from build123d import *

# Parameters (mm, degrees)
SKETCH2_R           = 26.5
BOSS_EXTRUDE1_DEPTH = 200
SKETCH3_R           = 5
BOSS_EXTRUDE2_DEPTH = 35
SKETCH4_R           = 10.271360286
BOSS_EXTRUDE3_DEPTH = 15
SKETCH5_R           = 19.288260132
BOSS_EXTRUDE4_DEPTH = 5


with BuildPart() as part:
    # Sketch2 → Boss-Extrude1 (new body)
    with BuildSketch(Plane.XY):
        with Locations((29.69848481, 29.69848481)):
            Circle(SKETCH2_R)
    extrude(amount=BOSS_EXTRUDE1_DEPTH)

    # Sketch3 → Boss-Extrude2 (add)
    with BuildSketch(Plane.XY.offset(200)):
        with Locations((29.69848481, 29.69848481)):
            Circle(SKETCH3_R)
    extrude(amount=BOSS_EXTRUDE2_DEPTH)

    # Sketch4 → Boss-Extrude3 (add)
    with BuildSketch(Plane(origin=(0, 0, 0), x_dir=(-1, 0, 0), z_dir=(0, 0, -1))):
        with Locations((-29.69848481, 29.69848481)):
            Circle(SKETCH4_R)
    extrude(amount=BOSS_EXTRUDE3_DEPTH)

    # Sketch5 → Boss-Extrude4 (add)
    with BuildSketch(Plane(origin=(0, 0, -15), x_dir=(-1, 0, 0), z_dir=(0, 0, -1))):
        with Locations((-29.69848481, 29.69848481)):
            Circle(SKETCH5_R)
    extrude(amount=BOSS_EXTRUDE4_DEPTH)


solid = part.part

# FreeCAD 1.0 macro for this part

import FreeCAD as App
import Part
import Sketcher
from FreeCAD import Vector
Q = App.Units.Quantity

doc = App.newDocument("Part")
body = doc.addObject("PartDesign::Body", "Body")

# Sketch on XY plane
sketch1 = body.newObject("Sketcher::SketchObject", "Sketch")
sketch1.AttachmentSupport = (doc.getObject("XY_Plane"), [""])
sketch1.MapMode = "FlatFace"
sketch1.addGeometry(Part.Circle(Vector(29.698485, 29.698485, 0), Vector(0, 0, 1), 26.5), False)
sketch1.addConstraint([
    Sketcher.Constraint("Diameter", 0, Q("53 mm")),
    Sketcher.Constraint("DistanceX", -1, 1, 0, 3, Q("29.698485 mm")),
    Sketcher.Constraint("DistanceY", -1, 1, 0, 3, Q("29.698485 mm")),
])
pad1 = body.newObject("PartDesign::Pad", "Pad")
pad1.Profile = sketch1
pad1.Length = 200

# Sketch on XY plane
sketch2 = body.newObject("Sketcher::SketchObject", "Sketch001")
sketch2.AttachmentSupport = (doc.getObject("XY_Plane"), [""])
sketch2.MapMode = "FlatFace"
sketch2.AttachmentOffset = App.Placement(Vector(0, 0, 200), App.Rotation())
sketch2.addGeometry(Part.Circle(Vector(29.698485, 29.698485, 0), Vector(0, 0, 1), 5), False)
sketch2.addConstraint([
    Sketcher.Constraint("Diameter", 0, Q("10 mm")),
    Sketcher.Constraint("DistanceX", -1, 1, 0, 3, Q("29.698485 mm")),
    Sketcher.Constraint("DistanceY", -1, 1, 0, 3, Q("29.698485 mm")),
])
pad2 = body.newObject("PartDesign::Pad", "Pad001")
pad2.Profile = sketch2
pad2.Length = 35

# Sketch on XY plane
sketch3 = body.newObject("Sketcher::SketchObject", "Sketch002")
sketch3.AttachmentSupport = (doc.getObject("XY_Plane"), [""])
sketch3.MapMode = "FlatFace"
sketch3.addGeometry(Part.Circle(Vector(29.698485, 29.698485, 0), Vector(0, 0, 1), 10.27136), False)
sketch3.addConstraint([
    Sketcher.Constraint("Diameter", 0, Q("20.542721 mm")),
    Sketcher.Constraint("DistanceX", -1, 1, 0, 3, Q("29.698485 mm")),
    Sketcher.Constraint("DistanceY", -1, 1, 0, 3, Q("29.698485 mm")),
])
pad3 = body.newObject("PartDesign::Pad", "Pad002")
pad3.Profile = sketch3
pad3.Length = 15
pad3.Reversed = True

# Sketch on XY plane
sketch4 = body.newObject("Sketcher::SketchObject", "Sketch003")
sketch4.AttachmentSupport = (doc.getObject("XY_Plane"), [""])
sketch4.MapMode = "FlatFace"
sketch4.AttachmentOffset = App.Placement(Vector(0, 0, -15), App.Rotation())
sketch4.addGeometry(Part.Circle(Vector(29.698485, 29.698485, 0), Vector(0, 0, 1), 19.28826), False)
sketch4.addConstraint([
    Sketcher.Constraint("Diameter", 0, Q("38.57652 mm")),
    Sketcher.Constraint("DistanceX", -1, 1, 0, 3, Q("29.698485 mm")),
    Sketcher.Constraint("DistanceY", -1, 1, 0, 3, Q("29.698485 mm")),
])
pad4 = body.newObject("PartDesign::Pad", "Pad003")
pad4.Profile = sketch4
pad4.Length = 5
pad4.Reversed = True

doc.recompute()
